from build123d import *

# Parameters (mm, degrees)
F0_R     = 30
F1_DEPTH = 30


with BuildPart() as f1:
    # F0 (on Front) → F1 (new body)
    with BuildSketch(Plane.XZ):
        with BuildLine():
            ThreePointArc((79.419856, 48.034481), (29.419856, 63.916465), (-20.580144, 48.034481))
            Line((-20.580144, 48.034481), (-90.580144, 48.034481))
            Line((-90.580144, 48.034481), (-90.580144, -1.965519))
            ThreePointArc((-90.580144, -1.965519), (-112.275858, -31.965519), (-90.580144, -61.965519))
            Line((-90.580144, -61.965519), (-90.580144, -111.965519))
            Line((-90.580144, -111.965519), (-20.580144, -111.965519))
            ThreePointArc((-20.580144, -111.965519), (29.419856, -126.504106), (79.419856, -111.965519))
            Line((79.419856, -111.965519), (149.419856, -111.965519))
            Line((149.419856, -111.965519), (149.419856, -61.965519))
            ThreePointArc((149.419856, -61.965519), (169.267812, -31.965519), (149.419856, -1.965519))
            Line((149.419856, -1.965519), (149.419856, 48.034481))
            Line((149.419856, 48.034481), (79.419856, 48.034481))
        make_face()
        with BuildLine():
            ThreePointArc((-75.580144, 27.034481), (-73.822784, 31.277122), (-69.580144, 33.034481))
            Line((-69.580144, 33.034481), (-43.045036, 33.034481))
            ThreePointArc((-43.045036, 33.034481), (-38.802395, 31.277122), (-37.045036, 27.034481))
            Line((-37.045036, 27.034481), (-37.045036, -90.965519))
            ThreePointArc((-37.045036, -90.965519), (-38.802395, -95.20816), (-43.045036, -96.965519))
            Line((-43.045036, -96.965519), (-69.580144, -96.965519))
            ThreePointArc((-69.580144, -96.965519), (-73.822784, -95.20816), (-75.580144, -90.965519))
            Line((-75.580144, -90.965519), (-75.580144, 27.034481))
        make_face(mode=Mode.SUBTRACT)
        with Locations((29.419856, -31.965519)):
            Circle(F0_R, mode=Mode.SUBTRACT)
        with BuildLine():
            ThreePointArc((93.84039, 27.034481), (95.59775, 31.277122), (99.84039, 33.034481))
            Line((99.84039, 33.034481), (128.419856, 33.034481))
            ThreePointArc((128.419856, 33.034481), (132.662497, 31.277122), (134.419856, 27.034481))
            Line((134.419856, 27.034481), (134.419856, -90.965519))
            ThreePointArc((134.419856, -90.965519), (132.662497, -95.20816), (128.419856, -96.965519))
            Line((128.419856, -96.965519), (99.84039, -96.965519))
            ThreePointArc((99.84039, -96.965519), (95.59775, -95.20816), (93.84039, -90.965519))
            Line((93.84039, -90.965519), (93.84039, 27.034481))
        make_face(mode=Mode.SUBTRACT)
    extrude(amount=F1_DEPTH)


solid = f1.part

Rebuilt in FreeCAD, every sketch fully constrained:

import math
import FreeCAD as App
import Part
import Sketcher

V = App.Vector

doc = App.newDocument("Part")
body = doc.addObject("PartDesign::Body", "Body")

# Sketch on XZ plane
sketch1 = doc.addObject("Sketcher::SketchObject", "Sketch")
body.addObject(sketch1)
sketch1.AttachmentSupport = (doc.XZ_Plane, [""])
sketch1.MapMode = "FlatFace"
sketch1.addGeometry([
    Part.ArcOfCircle(Part.Circle(V(29, -23, 0), V(0, 0, 1), 87), math.radians(55), math.radians(125)),  # 0
    Part.LineSegment(V(-21, 48, 0), V(-91, 48, 0)),  # 1
    Part.LineSegment(V(-91, 48, 0), V(-91, -2, 0)),  # 2
    Part.ArcOfCircle(Part.Circle(V(-81, -32, 0), V(0, 0, 1), 32), math.radians(108), math.radians(252)),  # 3
    Part.LineSegment(V(-91, -62, 0), V(-91, -112, 0)),  # 4
    Part.LineSegment(V(-91, -112, 0), V(-21, -112, 0)),  # 5
    Part.ArcOfCircle(Part.Circle(V(29, -33, 0), V(0, 0, 1), 93), math.radians(-122), math.radians(-58)),  # 6
    Part.LineSegment(V(79, -112, 0), V(149, -112, 0)),  # 7
    Part.LineSegment(V(149, -112, 0), V(149, -62, 0)),  # 8
    Part.ArcOfCircle(Part.Circle(V(137, -32, 0), V(0, 0, 1), 33), math.radians(-67), math.radians(67)),  # 9
    Part.LineSegment(V(149, -2, 0), V(149, 48, 0)),  # 10
    Part.LineSegment(V(149, 48, 0), V(79, 48, 0)),  # 11
    Part.LineSegment(V(-76, -91, 0), V(-76, 27, 0)),  # 12
    Part.ArcOfCircle(Part.Circle(V(-70, 27, 0), V(0, 0, 1), 6), math.radians(90), math.radians(180)),  # 13
    Part.LineSegment(V(-70, 33, 0), V(-43, 33, 0)),  # 14
    Part.ArcOfCircle(Part.Circle(V(-43, 27, 0), V(0, 0, 1), 6), math.radians(0), math.radians(90)),  # 15
    Part.LineSegment(V(-37, 27, 0), V(-37, -91, 0)),  # 16
    Part.ArcOfCircle(Part.Circle(V(-43, -91, 0), V(0, 0, 1), 6), math.radians(-90), math.radians(0)),  # 17
    Part.LineSegment(V(-43, -97, 0), V(-70, -97, 0)),  # 18
    Part.ArcOfCircle(Part.Circle(V(-70, -91, 0), V(0, 0, 1), 6), math.radians(-180), math.radians(-90)),  # 19
    Part.Circle(V(29, -32, 0), V(0, 0, 1), 30),  # 20
    Part.LineSegment(V(94, -91, 0), V(94, 27, 0)),  # 21
    Part.ArcOfCircle(Part.Circle(V(100, 27, 0), V(0, 0, 1), 6), math.radians(90), math.radians(180)),  # 22
    Part.LineSegment(V(100, 33, 0), V(128, 33, 0)),  # 23
    Part.ArcOfCircle(Part.Circle(V(128, 27, 0), V(0, 0, 1), 6), math.radians(0), math.radians(90)),  # 24
    Part.LineSegment(V(134, 27, 0), V(134, -91, 0)),  # 25
    Part.ArcOfCircle(Part.Circle(V(128, -91, 0), V(0, 0, 1), 6), math.radians(-90), math.radians(0)),  # 26
    Part.LineSegment(V(128, -97, 0), V(100, -97, 0)),  # 27
    Part.ArcOfCircle(Part.Circle(V(100, -91, 0), V(0, 0, 1), 6), math.radians(-180), math.radians(-90)),  # 28
], False)
sketch1.addConstraint([
    Sketcher.Constraint("Coincident", 0, 2, 1, 1),
    Sketcher.Constraint("Coincident", 1, 2, 2, 1),
    Sketcher.Constraint("Coincident", 2, 2, 3, 1),
    Sketcher.Constraint("Coincident", 3, 2, 4, 1),
    Sketcher.Constraint("Coincident", 4, 2, 5, 1),
    Sketcher.Constraint("Coincident", 5, 2, 6, 1),
    Sketcher.Constraint("Coincident", 6, 2, 7, 1),
    Sketcher.Constraint("Coincident", 7, 2, 8, 1),
    Sketcher.Constraint("Coincident", 8, 2, 9, 1),
    Sketcher.Constraint("Coincident", 9, 2, 10, 1),
    Sketcher.Constraint("Coincident", 10, 2, 11, 1),
    Sketcher.Constraint("Coincident", 11, 2, 0, 1),
    Sketcher.Constraint("Tangent", 12, 2, 13, 2),
    Sketcher.Constraint("Tangent", 13, 1, 14, 1),
    Sketcher.Constraint("Tangent", 14, 2, 15, 2),
    Sketcher.Constraint("Tangent", 15, 1, 16, 1),
    Sketcher.Constraint("Tangent", 16, 2, 17, 2),
    Sketcher.Constraint("Tangent", 17, 1, 18, 1),
    Sketcher.Constraint("Tangent", 18, 2, 19, 2),
    Sketcher.Constraint("Tangent", 19, 1, 12, 1),
    Sketcher.Constraint("Tangent", 21, 2, 22, 2),
    Sketcher.Constraint("Tangent", 22, 1, 23, 1),
    Sketcher.Constraint("Tangent", 23, 2, 24, 2),
    Sketcher.Constraint("Tangent", 24, 1, 25, 1),
    Sketcher.Constraint("Tangent", 25, 2, 26, 2),
    Sketcher.Constraint("Tangent", 26, 1, 27, 1),
    Sketcher.Constraint("Tangent", 27, 2, 28, 2),
    Sketcher.Constraint("Tangent", 28, 1, 21, 1),
    Sketcher.Constraint("Horizontal", 1),
    Sketcher.Constraint("Vertical", 2),
    Sketcher.Constraint("Vertical", 4),
    Sketcher.Constraint("Horizontal", 5),
    Sketcher.Constraint("Horizontal", 7),
    Sketcher.Constraint("Vertical", 8),
    Sketcher.Constraint("Vertical", 10),
    Sketcher.Constraint("Horizontal", 11),
    Sketcher.Constraint("Vertical", 12),
    Sketcher.Constraint("Horizontal", 14),
    Sketcher.Constraint("Vertical", 16),
    Sketcher.Constraint("Horizontal", 18),
    Sketcher.Constraint("Vertical", 21),
    Sketcher.Constraint("Horizontal", 23),
    Sketcher.Constraint("Vertical", 25),
    Sketcher.Constraint("Horizontal", 27),
    Sketcher.Constraint("Equal", 13, 15),
    Sketcher.Constraint("Equal", 15, 17),
    Sketcher.Constraint("Equal", 17, 19),
    Sketcher.Constraint("Equal", 19, 22),
    Sketcher.Constraint("Equal", 22, 24),
    Sketcher.Constraint("Equal", 24, 26),
    Sketcher.Constraint("Equal", 26, 28),
    Sketcher.Constraint("Horizontal", 3, 3, 9, 3),
    Sketcher.Constraint("Horizontal", 9, 3, 20, 3),
    Sketcher.Constraint("Horizontal", 15, 3, 22, 3),
    Sketcher.Constraint("Horizontal", 19, 3, 26, 3),
    Sketcher.Constraint("Horizontal", 5, 2, 6, 2),
    Sketcher.Constraint("Horizontal", 3, 2, 8, 2),
    Sketcher.Constraint("Horizontal", 2, 2, 9, 2),
    Sketcher.Constraint("Horizontal", 1, 2, 10, 2),
    Sketcher.Constraint("Vertical", 0, 3, 6, 3),
    Sketcher.Constraint("Vertical", 6, 3, 20, 3),
    Sketcher.Constraint("Vertical", 2, 2, 3, 2),
    Sketcher.Constraint("Vertical", 0, 2, 5, 2),
    Sketcher.Constraint("Equal", 5, 7),
    Sketcher.Constraint("Equal", 2, 4),
    Sketcher.Constraint("Diameter", 20, 60.0),
    Sketcher.Constraint("Radius", 13, 6.000001),
    Sketcher.Constraint("DistanceX", 1, 2, 1, 1, 70.0),
    Sketcher.Constraint("DistanceY", 2, 2, 2, 1, 50.0),
    Sketcher.Constraint("DistanceY", 12, 1, 12, 2, 118.0),
    Sketcher.Constraint("DistanceY", 3, 3, 13, 3, 58.999999),
    Sketcher.Constraint("DistanceX", 13, 3, 0, 3, 98.999999),
    Sketcher.Constraint("DistanceX", 0, 3, 24, 3, 99.000001),
    Sketcher.Constraint("DistanceY", 15, 3, 0, 2, 20.999999),
    Sketcher.Constraint("DistanceX", 13, 3, 0, 2, 48.999999),
    Sketcher.Constraint("Radius", 3, 31.589281),
    Sketcher.Constraint("Radius", 0, 86.646524),
    Sketcher.Constraint("Radius", 6, 93.247388),
    Sketcher.Constraint("Radius", 9, 32.596338),
    Sketcher.Constraint("DistanceX", 14, 1, 14, 2, 26.535108),
    Sketcher.Constraint("DistanceX", 23, 1, 23, 2, 28.579466),
    Sketcher.Constraint("DistanceY", 0, 3, -1, 1, 22.730059),
    Sketcher.Constraint("DistanceX", -1, 1, 22, 3, 99.840391),
])
pad1 = doc.addObject("PartDesign::Pad", "Pad")
body.addObject(pad1)
pad1.Profile = sketch1
pad1.Length = 30

doc.recompute()
